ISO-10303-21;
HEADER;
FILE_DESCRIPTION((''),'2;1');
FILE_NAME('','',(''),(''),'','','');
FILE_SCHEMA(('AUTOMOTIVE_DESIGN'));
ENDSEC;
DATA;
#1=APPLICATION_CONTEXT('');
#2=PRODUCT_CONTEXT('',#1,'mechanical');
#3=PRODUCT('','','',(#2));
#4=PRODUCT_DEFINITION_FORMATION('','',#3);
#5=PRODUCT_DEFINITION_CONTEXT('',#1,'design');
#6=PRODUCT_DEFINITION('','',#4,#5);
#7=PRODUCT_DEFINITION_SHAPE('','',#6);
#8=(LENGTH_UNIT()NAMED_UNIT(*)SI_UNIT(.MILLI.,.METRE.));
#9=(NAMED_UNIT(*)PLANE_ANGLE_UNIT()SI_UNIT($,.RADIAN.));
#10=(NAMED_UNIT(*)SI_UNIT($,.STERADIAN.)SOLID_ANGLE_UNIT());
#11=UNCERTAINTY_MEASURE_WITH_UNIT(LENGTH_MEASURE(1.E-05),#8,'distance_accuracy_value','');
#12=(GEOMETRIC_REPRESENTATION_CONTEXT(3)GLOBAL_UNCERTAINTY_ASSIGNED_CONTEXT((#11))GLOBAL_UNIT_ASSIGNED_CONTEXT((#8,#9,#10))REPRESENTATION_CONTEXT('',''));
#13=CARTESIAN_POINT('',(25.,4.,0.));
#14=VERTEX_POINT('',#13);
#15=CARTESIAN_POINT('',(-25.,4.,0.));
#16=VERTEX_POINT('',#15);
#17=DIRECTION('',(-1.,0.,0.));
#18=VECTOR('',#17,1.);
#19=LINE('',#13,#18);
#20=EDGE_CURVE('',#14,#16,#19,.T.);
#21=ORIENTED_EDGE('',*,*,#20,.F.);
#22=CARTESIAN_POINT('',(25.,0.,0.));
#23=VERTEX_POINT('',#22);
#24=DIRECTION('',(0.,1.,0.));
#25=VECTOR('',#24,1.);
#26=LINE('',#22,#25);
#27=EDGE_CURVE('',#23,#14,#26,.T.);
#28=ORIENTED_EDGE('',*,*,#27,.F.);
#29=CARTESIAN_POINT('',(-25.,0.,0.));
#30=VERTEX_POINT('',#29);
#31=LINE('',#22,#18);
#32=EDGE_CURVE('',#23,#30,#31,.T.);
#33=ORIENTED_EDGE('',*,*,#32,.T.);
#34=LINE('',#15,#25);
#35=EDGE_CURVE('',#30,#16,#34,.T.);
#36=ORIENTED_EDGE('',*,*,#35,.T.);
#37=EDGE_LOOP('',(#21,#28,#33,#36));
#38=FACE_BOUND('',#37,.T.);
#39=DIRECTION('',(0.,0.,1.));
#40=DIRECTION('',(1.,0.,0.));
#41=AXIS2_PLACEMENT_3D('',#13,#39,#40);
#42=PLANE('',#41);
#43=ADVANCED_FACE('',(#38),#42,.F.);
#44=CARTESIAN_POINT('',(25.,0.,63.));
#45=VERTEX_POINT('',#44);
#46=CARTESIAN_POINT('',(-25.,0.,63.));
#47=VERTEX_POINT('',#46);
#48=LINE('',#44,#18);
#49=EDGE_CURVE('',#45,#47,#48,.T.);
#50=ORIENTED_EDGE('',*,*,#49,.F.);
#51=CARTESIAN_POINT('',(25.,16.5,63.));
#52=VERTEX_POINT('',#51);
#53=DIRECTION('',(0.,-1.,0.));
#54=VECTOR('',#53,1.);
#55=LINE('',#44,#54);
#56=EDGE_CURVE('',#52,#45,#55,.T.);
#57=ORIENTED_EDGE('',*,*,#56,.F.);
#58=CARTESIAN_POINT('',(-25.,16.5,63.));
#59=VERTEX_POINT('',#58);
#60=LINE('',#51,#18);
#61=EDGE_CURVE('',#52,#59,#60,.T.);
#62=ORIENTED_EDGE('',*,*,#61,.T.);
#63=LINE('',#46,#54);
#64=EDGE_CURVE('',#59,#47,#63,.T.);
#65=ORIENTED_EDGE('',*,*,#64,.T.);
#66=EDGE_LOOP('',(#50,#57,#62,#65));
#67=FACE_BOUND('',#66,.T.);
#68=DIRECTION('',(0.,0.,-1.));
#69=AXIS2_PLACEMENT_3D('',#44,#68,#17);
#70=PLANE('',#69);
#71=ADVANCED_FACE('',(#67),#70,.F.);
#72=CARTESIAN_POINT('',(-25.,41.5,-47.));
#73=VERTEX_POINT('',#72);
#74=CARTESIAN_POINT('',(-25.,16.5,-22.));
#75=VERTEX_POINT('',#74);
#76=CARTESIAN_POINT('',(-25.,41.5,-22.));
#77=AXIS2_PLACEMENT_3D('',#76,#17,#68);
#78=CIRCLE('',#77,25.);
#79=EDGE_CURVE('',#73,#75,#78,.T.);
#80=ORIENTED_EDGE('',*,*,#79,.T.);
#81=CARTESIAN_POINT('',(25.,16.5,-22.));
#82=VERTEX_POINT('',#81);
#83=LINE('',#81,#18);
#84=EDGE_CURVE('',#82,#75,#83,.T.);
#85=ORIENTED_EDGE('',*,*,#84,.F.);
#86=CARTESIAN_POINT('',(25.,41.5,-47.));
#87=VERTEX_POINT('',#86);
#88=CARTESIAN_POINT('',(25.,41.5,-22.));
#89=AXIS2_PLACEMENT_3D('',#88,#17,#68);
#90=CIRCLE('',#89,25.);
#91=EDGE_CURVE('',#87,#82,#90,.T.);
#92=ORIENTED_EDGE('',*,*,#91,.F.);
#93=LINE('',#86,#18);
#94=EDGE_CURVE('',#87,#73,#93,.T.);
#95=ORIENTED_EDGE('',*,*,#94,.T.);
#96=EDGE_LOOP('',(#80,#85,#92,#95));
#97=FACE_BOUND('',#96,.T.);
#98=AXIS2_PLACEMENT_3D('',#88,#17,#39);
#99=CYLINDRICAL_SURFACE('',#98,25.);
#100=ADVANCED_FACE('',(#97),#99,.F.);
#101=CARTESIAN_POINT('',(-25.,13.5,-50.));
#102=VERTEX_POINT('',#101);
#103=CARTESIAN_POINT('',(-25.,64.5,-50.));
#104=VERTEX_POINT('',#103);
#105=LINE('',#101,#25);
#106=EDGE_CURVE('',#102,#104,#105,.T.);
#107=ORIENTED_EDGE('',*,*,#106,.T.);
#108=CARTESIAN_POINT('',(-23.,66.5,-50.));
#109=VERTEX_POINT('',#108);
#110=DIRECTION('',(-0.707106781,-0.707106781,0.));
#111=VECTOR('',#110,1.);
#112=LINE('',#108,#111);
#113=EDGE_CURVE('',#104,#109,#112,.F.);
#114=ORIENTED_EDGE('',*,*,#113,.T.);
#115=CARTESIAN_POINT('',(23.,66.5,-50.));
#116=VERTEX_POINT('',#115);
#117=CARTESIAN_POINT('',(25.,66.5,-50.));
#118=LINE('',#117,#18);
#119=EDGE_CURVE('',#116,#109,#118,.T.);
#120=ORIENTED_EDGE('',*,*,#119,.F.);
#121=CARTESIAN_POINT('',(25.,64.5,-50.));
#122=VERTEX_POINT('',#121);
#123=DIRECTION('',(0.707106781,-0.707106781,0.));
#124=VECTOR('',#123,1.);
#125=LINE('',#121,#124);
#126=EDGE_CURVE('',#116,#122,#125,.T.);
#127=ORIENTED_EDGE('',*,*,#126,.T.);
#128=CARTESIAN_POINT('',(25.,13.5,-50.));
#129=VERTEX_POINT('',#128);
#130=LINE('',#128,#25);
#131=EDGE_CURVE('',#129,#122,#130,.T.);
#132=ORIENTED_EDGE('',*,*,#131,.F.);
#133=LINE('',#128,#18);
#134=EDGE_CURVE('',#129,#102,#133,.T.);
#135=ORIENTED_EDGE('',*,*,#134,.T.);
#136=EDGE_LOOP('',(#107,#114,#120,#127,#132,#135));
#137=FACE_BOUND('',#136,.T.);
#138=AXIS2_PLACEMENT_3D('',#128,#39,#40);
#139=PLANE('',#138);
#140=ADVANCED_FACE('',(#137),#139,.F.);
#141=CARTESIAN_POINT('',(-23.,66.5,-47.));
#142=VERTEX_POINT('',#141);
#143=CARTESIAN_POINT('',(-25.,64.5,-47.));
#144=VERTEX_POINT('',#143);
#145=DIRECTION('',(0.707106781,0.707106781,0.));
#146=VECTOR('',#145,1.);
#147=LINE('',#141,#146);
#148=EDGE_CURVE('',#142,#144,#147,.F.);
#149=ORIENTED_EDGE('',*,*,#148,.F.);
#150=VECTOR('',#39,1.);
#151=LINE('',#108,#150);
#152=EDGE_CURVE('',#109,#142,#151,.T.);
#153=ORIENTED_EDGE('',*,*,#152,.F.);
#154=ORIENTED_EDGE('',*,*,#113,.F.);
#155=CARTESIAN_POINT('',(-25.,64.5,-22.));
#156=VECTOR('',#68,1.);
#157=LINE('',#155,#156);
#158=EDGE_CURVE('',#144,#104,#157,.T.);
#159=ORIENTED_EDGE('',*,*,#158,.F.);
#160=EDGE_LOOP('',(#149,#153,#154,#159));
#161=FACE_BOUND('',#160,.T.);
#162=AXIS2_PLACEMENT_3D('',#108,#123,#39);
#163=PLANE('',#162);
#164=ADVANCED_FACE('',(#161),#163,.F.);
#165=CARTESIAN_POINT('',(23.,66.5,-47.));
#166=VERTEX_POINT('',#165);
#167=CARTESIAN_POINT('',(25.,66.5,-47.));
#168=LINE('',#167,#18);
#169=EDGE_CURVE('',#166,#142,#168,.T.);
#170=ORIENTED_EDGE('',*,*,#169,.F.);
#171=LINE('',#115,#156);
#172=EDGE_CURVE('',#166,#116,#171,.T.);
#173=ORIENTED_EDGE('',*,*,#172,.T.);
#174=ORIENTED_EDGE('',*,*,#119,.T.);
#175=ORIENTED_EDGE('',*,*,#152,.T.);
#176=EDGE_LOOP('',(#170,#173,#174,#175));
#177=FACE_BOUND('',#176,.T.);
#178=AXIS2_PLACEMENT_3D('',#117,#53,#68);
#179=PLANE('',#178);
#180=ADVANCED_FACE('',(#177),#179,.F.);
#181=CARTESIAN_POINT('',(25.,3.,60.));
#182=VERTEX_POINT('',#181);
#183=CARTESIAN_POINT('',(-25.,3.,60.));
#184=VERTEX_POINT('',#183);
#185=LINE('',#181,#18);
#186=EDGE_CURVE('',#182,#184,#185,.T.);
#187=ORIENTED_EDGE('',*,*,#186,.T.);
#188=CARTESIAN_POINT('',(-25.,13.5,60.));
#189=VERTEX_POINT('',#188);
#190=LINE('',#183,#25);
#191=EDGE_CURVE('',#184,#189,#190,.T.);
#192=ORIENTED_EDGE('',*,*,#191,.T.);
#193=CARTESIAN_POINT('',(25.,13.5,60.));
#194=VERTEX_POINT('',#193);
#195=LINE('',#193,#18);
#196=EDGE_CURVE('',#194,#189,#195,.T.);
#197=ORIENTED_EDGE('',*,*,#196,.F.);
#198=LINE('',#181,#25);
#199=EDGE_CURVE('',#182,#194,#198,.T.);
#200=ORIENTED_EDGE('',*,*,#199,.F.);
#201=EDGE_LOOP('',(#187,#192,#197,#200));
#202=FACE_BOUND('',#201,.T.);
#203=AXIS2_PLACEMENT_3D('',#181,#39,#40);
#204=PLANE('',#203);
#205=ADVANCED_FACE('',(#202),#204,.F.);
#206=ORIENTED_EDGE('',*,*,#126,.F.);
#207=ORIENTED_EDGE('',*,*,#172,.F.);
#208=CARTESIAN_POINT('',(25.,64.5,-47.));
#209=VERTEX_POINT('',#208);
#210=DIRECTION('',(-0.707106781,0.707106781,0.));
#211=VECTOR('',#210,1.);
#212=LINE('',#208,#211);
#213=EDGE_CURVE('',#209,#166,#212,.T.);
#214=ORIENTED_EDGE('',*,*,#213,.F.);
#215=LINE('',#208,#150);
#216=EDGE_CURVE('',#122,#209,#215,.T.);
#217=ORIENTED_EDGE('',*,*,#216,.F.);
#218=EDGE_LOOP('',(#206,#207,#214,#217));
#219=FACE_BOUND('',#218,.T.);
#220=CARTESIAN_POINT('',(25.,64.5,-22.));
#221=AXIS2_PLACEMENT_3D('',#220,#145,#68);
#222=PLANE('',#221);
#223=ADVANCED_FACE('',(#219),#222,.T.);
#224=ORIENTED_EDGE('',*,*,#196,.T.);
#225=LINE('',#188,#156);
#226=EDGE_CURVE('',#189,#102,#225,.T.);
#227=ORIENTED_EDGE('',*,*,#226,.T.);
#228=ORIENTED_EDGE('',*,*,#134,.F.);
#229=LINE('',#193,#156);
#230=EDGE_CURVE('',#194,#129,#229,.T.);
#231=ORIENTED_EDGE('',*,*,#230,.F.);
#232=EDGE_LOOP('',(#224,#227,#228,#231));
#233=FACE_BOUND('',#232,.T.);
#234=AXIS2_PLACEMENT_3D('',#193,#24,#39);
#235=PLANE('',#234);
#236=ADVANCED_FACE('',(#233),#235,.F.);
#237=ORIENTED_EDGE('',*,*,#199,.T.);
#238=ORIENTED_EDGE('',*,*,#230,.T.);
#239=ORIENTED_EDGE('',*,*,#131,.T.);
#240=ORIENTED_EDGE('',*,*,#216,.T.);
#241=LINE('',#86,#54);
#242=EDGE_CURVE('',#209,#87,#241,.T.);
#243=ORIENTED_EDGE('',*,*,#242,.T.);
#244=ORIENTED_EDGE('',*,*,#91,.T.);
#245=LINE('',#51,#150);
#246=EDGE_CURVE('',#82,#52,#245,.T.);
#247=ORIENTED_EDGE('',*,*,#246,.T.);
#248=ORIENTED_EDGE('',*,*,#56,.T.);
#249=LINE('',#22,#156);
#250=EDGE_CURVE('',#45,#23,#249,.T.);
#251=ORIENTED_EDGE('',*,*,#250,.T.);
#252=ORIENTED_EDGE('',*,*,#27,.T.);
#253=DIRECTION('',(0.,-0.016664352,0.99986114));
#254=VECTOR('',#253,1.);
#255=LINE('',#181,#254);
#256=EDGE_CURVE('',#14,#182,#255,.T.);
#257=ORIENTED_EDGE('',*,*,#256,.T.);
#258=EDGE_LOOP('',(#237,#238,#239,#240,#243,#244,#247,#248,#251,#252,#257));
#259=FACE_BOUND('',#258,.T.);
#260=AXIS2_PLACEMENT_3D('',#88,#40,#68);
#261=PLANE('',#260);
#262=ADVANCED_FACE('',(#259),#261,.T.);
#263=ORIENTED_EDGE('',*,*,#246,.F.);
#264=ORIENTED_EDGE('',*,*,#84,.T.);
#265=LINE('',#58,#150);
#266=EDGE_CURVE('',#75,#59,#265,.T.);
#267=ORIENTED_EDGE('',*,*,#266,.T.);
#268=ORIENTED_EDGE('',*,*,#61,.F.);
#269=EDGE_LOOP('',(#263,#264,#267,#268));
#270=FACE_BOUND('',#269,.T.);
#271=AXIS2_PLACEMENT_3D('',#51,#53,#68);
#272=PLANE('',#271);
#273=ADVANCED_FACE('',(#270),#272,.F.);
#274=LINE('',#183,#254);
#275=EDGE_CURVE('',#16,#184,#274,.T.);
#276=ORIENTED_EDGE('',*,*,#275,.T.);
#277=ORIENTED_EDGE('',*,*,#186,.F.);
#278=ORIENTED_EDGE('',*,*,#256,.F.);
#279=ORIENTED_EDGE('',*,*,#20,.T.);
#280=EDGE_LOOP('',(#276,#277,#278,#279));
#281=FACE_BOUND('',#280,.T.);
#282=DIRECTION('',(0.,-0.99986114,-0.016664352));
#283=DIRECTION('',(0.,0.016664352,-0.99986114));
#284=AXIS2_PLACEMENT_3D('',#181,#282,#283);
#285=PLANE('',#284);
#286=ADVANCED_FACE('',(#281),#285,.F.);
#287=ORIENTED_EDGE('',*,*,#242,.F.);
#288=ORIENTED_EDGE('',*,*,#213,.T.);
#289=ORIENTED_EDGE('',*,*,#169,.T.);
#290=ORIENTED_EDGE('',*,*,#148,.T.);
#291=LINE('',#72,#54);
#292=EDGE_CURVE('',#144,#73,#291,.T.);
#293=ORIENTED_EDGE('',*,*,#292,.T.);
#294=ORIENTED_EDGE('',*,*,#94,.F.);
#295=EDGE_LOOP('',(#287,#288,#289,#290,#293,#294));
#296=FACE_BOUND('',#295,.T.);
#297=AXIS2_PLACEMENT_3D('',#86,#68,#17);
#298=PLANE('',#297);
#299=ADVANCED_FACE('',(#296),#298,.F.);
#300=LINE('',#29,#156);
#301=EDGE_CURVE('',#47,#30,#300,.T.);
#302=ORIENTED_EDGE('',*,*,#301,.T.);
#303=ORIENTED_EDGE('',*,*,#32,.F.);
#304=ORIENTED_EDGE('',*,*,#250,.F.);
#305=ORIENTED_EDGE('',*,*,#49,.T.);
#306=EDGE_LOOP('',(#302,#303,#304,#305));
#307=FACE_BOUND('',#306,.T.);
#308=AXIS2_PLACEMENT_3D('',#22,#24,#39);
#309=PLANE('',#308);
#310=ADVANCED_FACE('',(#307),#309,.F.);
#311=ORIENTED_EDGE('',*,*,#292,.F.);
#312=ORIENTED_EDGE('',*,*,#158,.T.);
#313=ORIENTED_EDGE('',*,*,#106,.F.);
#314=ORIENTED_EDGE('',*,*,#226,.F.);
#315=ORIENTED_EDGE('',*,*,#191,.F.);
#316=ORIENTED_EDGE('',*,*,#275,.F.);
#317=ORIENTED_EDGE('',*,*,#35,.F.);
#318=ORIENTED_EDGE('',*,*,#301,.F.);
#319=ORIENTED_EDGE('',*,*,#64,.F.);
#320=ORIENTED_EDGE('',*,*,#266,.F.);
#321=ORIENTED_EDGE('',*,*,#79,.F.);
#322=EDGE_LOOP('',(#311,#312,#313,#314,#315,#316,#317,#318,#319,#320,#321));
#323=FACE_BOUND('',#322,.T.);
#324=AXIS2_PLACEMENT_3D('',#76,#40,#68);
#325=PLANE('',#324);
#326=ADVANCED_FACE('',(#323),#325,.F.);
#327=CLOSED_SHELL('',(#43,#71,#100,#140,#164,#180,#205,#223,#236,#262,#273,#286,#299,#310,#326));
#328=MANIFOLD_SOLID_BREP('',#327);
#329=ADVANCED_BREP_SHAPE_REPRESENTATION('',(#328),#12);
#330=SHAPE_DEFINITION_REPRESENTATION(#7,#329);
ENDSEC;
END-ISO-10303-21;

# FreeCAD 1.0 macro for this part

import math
import FreeCAD as App
import Part
import Sketcher
from FreeCAD import Vector
Q = App.Units.Quantity


def edges_at(feature, points):
    """Names of the edges that pass closest to the given points."""
    edges = feature.Shape.Edges
    near = lambda p: min(range(len(edges)), key=lambda i: edges[i].distToShape(Part.Vertex(*p))[0])
    return sorted({f"Edge{near(p) + 1}" for p in points})

doc = App.newDocument("Part")
params = doc.addObject("Spreadsheet::Sheet", "Params")
for row, (alias, value) in enumerate([
    ("sketch1_radius", "25 mm"),
    ("sketch1_width", "4 mm"),
    ("sketch1_width2", "53 mm"),
    ("sketch1_width3", "25 mm"),
    ("sketch1_height", "63 mm"),
    ("pad1_length", "50 mm"),
    ("chamfer_size", "2 mm"),
], start=1):
    params.set(f"A{row}", alias)
    params.set(f"B{row}", "=" + value)
    params.setAlias(f"B{row}", alias)

body = doc.addObject("PartDesign::Body", "Body")

sketch1 = doc.addObject("Sketcher::SketchObject", "Sketch")
body.addObject(sketch1)
sketch1.AttachmentSupport = (doc.YZ_Plane, [""])
sketch1.MapMode = "FlatFace"
sketch1.addGeometry(Part.LineSegment(Vector(0, 63, 0), Vector(0, 0, 0)), False)
sketch1.addGeometry(Part.LineSegment(Vector(0, 0, 0), Vector(4, 0, 0)), False)
sketch1.addGeometry(Part.LineSegment(Vector(4, 0, 0), Vector(3, 60, 0)), False)
sketch1.addGeometry(Part.LineSegment(Vector(3, 60, 0), Vector(13.5, 60, 0)), False)
sketch1.addGeometry(Part.LineSegment(Vector(13.5, 60, 0), Vector(13.5, -50, 0)), False)
sketch1.addGeometry(Part.LineSegment(Vector(13.5, -50, 0), Vector(66.5, -50, 0)), False)
sketch1.addGeometry(Part.LineSegment(Vector(66.5, -50, 0), Vector(66.5, -47, 0)), False)
sketch1.addGeometry(Part.LineSegment(Vector(66.5, -47, 0), Vector(41.5, -47, 0)), False)
sketch1.addGeometry(Part.ArcOfCircle(Part.Circle(Vector(41.5, -22, 0), Vector(0, 0, 1), 25), math.radians(180), math.radians(270)), False)
sketch1.addGeometry(Part.LineSegment(Vector(16.5, -22, 0), Vector(16.5, 63, 0)), False)
sketch1.addGeometry(Part.LineSegment(Vector(16.5, 63, 0), Vector(0, 63, 0)), False)
sketch1.addConstraint(Sketcher.Constraint("Coincident", 0, 2, 1, 1))
sketch1.addConstraint(Sketcher.Constraint("Coincident", 1, 2, 2, 1))
sketch1.addConstraint(Sketcher.Constraint("Coincident", 2, 2, 3, 1))
sketch1.addConstraint(Sketcher.Constraint("Coincident", 3, 2, 4, 1))
sketch1.addConstraint(Sketcher.Constraint("Coincident", 4, 2, 5, 1))
sketch1.addConstraint(Sketcher.Constraint("Coincident", 5, 2, 6, 1))
sketch1.addConstraint(Sketcher.Constraint("Coincident", 6, 2, 7, 1))
sketch1.addConstraint(Sketcher.Constraint("Tangent", 7, 2, 8, 2))
sketch1.addConstraint(Sketcher.Constraint("Tangent", 8, 1, 9, 1))
sketch1.addConstraint(Sketcher.Constraint("Coincident", 9, 2, 10, 1))
sketch1.addConstraint(Sketcher.Constraint("Coincident", 10, 2, 0, 1))
sketch1.addConstraint(Sketcher.Constraint("Vertical", 0))
sketch1.addConstraint(Sketcher.Constraint("Horizontal", 1))
sketch1.addConstraint(Sketcher.Constraint("Horizontal", 3))
sketch1.addConstraint(Sketcher.Constraint("Vertical", 4))
sketch1.addConstraint(Sketcher.Constraint("Horizontal", 5))
sketch1.addConstraint(Sketcher.Constraint("Vertical", 6))
sketch1.addConstraint(Sketcher.Constraint("Horizontal", 7))
sketch1.addConstraint(Sketcher.Constraint("Vertical", 9))
sketch1.addConstraint(Sketcher.Constraint("Horizontal", 10))
sketch1.addConstraint(Sketcher.Constraint("Coincident", 0, 2, -1, 1))
sketch1.addConstraint(Sketcher.Constraint("Radius", 8, Q("25 mm")))
sketch1.addConstraint(Sketcher.Constraint("DistanceX", 1, 1, 1, 2, Q("4 mm")))
sketch1.addConstraint(Sketcher.Constraint("DistanceX", 5, 1, 5, 2, Q("53 mm")))
sketch1.addConstraint(Sketcher.Constraint("DistanceX", 7, 2, 7, 1, Q("25 mm")))
sketch1.addConstraint(Sketcher.Constraint("DistanceY", 0, 2, 0, 1, Q("63 mm")))
sketch1.addConstraint(Sketcher.Constraint("DistanceY", 4, 2, 4, 1, Q("110 mm")))
sketch1.addConstraint(Sketcher.Constraint("DistanceY", 6, 1, 6, 2, Q("3 mm")))
sketch1.addConstraint(Sketcher.Constraint("DistanceY", 9, 1, 9, 2, Q("85 mm")))
sketch1.addConstraint(Sketcher.Constraint("DistanceX", 3, 1, 3, 2, Q("10.5 mm")))
sketch1.addConstraint(Sketcher.Constraint("DistanceX", 10, 2, 10, 1, Q("16.5 mm")))
sketch1.setExpression("Constraints[21]", "Params.sketch1_radius")
sketch1.setExpression("Constraints[22]", "Params.sketch1_width")
sketch1.setExpression("Constraints[23]", "Params.sketch1_width2")
sketch1.setExpression("Constraints[24]", "Params.sketch1_width3")
sketch1.setExpression("Constraints[25]", "Params.sketch1_height")
pad1 = doc.addObject("PartDesign::Pad", "Pad")
body.addObject(pad1)
pad1.Profile = sketch1
pad1.setExpression("Length", "Params.pad1_length")
pad1.Midplane = True
doc.recompute()

chamfer = doc.addObject("PartDesign::Chamfer", "Chamfer")
body.addObject(chamfer)
chamfer.Base = (pad1, edges_at(pad1, [(-25, 66.5, -48.5), (25, 66.5, -48.5)]))
chamfer.setExpression("Size", "Params.chamfer_size")

doc.recompute()
